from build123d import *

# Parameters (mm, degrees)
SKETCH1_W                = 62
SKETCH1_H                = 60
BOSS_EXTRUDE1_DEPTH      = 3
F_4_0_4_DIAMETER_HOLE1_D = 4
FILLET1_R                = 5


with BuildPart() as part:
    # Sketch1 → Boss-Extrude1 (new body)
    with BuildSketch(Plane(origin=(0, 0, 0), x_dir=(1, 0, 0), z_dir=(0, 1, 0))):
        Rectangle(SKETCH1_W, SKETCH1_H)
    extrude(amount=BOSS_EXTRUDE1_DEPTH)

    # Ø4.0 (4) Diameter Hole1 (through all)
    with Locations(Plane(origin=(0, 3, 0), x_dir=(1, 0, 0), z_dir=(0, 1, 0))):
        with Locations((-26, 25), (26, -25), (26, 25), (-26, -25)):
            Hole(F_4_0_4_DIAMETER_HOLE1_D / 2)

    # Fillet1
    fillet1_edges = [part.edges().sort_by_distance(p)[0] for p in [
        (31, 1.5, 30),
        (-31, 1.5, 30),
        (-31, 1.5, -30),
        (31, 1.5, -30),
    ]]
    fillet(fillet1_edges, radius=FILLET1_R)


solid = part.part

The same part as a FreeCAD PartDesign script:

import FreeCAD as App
import Part
import Sketcher


def edges_at(feature, points):
    """Names of the edges that pass closest to the given points."""
    edges = feature.Shape.Edges
    near = lambda p: min(range(len(edges)), key=lambda i: edges[i].distToShape(Part.Vertex(*p))[0])
    return sorted({f"Edge{near(p) + 1}" for p in points})

doc = App.newDocument("Part")
body = doc.addObject("PartDesign::Body", "Body")

sketch1 = body.newObject("Sketcher::SketchObject", "Sketch")
sketch1.AttachmentSupport = (doc.getObject("XZ_Plane"), [""])
sketch1.MapMode = "FlatFace"
sketch1.addGeometry([
    Part.LineSegment(App.Vector(-31, -30, 0), App.Vector(-31, 30, 0)),
    Part.LineSegment(App.Vector(-31, 30, 0), App.Vector(31, 30, 0)),
    Part.LineSegment(App.Vector(31, 30, 0), App.Vector(31, -30, 0)),
    Part.LineSegment(App.Vector(31, -30, 0), App.Vector(-31, -30, 0)),
], False)
sketch1.addConstraint([
    Sketcher.Constraint("Coincident", 0, 2, 1, 1),
    Sketcher.Constraint("Coincident", 1, 2, 2, 1),
    Sketcher.Constraint("Coincident", 2, 2, 3, 1),
    Sketcher.Constraint("Coincident", 3, 2, 0, 1),
    Sketcher.Constraint("Vertical", 0),
    Sketcher.Constraint("Horizontal", 1),
    Sketcher.Constraint("Vertical", 2),
    Sketcher.Constraint("Horizontal", 3),
    Sketcher.Constraint("Symmetric", 0, 2, 2, 2, -1, 1),
    Sketcher.Constraint("DistanceX", 1, 1, 1, 2, 62.0),
    Sketcher.Constraint("DistanceY", 0, 1, 0, 2, 60.0),
])
pad1 = body.newObject("PartDesign::Pad", "Pad")
pad1.Profile = sketch1
pad1.Length = 3
pad1.Reversed = True

sketch2 = body.newObject("Sketcher::SketchObject", "Sketch001")
sketch2.AttachmentSupport = (doc.getObject("XZ_Plane"), [""])
sketch2.MapMode = "FlatFace"
sketch2.AttachmentOffset = App.Placement(App.Vector(0, 0, -3), App.Rotation())
sketch2.addGeometry([
    Part.Circle(App.Vector(-26, -25, 0), App.Vector(0, 0, 1), 2),
    Part.Circle(App.Vector(26, 25, 0), App.Vector(0, 0, 1), 2),
    Part.Circle(App.Vector(26, -25, 0), App.Vector(0, 0, 1), 2),
    Part.Circle(App.Vector(-26, 25, 0), App.Vector(0, 0, 1), 2),
], False)
sketch2.addConstraint([
    Sketcher.Constraint("Equal", 0, 1),
    Sketcher.Constraint("Equal", 1, 2),
    Sketcher.Constraint("Equal", 2, 3),
    Sketcher.Constraint("Symmetric", 0, 3, 1, 3, -1, 1),
    Sketcher.Constraint("Symmetric", 2, 3, 3, 3, -1, 1),
    Sketcher.Constraint("Symmetric", 0, 3, 2, 3, -2),
    Sketcher.Constraint("Diameter", 0, 4.0),
    Sketcher.Constraint("DistanceX", 0, 3, -1, 1, 26.0),
    Sketcher.Constraint("DistanceY", 0, 3, -1, 1, 25.0),
])
doc.recompute()
hole = body.newObject("PartDesign::Hole", "Hole")
hole.Profile = sketch2
hole.ThreadType = "None"
hole.Diameter = 4
hole.DepthType = "ThroughAll"
hole.Reversed = True
doc.recompute()

fillet = body.newObject("PartDesign::Fillet", "Fillet")
fillet.Base = (hole, edges_at(hole, [
    (31, 1.5, 30),
    (-31, 1.5, 30),
    (-31, 1.5, -30),
    (31, 1.5, -30),
]))
fillet.Radius = 5

doc.recompute()
